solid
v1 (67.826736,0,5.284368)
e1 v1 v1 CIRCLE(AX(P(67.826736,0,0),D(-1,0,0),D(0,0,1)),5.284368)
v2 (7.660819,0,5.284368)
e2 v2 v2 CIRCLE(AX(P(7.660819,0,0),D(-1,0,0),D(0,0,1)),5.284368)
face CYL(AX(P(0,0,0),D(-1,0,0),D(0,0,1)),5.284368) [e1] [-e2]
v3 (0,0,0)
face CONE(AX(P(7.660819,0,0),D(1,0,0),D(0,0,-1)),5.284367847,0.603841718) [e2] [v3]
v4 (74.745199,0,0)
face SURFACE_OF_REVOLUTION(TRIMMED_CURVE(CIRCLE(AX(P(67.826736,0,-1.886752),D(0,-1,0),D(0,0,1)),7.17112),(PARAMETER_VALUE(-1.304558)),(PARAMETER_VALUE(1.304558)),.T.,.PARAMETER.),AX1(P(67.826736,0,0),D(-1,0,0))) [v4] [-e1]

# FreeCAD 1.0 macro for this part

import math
import FreeCAD as App
import Part
import Sketcher

doc = App.newDocument("Part")
body = doc.addObject("PartDesign::Body", "Body")

# Sketch on XZ plane
sketch1 = doc.addObject("Sketcher::SketchObject", "Sketch")
body.addObject(sketch1)
sketch1.AttachmentSupport = (doc.XZ_Plane, [""])
sketch1.MapMode = "FlatFace"
sketch1.addGeometry(Part.LineSegment(App.Vector(0, 0, 0), App.Vector(75, 0, 0)), False)
sketch1.addGeometry(Part.ArcOfCircle(Part.Circle(App.Vector(68, 2, 0), App.Vector(0, 0, 1), 7), math.radians(-90), math.radians(-15)), False)
sketch1.addGeometry(Part.LineSegment(App.Vector(68, -5, 0), App.Vector(8, -5, 0)), False)
sketch1.addGeometry(Part.LineSegment(App.Vector(8, -5, 0), App.Vector(0, 0, 0)), False)
sketch1.addConstraint(Sketcher.Constraint("Coincident", 0, 2, 1, 2))
sketch1.addConstraint(Sketcher.Constraint("Tangent", 1, 1, 2, 1))
sketch1.addConstraint(Sketcher.Constraint("Coincident", 2, 2, 3, 1))
sketch1.addConstraint(Sketcher.Constraint("Coincident", 3, 2, 0, 1))
sketch1.addConstraint(Sketcher.Constraint("Horizontal", 0))
sketch1.addConstraint(Sketcher.Constraint("Horizontal", 2))
sketch1.addConstraint(Sketcher.Constraint("Coincident", 3, 2, -1, 1))
sketch1.addConstraint(Sketcher.Constraint("Radius", 1, 7.17112))
sketch1.addConstraint(Sketcher.Constraint("DistanceX", 0, 1, 0, 2, 74.745199))
sketch1.addConstraint(Sketcher.Constraint("DistanceX", 2, 2, 2, 1, 60.165917))
sketch1.addConstraint(Sketcher.Constraint("DistanceX", -1, 1, 2, 2, 7.660819))
revolution = doc.addObject("PartDesign::Revolution", "Revolution")
body.addObject(revolution)
revolution.Profile = sketch1
revolution.ReferenceAxis = (sketch1, ["H_Axis"])
revolution.Angle = 360

doc.recompute()
